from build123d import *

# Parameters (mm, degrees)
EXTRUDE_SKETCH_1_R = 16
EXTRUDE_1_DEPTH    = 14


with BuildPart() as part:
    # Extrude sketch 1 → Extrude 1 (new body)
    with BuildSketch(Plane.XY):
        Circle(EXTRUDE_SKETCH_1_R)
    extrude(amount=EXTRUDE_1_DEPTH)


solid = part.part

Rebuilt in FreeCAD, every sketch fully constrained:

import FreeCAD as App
import Part
import Sketcher

doc = App.newDocument("Part")
body = doc.addObject("PartDesign::Body", "Body")

sketch1 = body.newObject("Sketcher::SketchObject", "Sketch")
sketch1.AttachmentSupport = (doc.getObject("XY_Plane"), [""])
sketch1.MapMode = "FlatFace"
sketch1.addGeometry(Part.Circle(App.Vector(0, 0, 0), App.Vector(0, 0, 1), 16), False)
sketch1.addConstraint([
    Sketcher.Constraint("Coincident", 0, 3, -1, 1),
    Sketcher.Constraint("Diameter", 0, 32.0),
])
pad1 = body.newObject("PartDesign::Pad", "Pad")
pad1.Profile = sketch1
pad1.Length = 14

doc.recompute()
